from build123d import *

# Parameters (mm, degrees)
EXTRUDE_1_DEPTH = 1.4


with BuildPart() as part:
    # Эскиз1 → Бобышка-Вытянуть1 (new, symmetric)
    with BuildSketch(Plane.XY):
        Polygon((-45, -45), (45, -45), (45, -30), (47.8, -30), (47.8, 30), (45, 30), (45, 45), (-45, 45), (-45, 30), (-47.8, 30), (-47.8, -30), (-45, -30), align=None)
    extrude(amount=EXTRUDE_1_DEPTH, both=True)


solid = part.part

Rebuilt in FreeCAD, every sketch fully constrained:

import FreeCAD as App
import Part
import Sketcher

V = App.Vector


def add_polygon(sketch, points):
    """Adds a closed chain of lines whose ends are joined by coincident constraints."""
    first, n = sketch.GeometryCount, len(points)
    for a, b in zip(points, points[1:] + points[:1]):
        sketch.addGeometry(Part.LineSegment(App.Vector(*a, 0), App.Vector(*b, 0)), False)
    for i in range(n):
        sketch.addConstraint(Sketcher.Constraint("Coincident", first + i, 2, first + (i + 1) % n, 1))

doc = App.newDocument("Part")
body = doc.addObject("PartDesign::Body", "Body")

sketch1 = body.newObject("Sketcher::SketchObject", "Sketch")
sketch1.AttachmentSupport = (doc.getObject("XY_Plane"), [""])
sketch1.MapMode = "FlatFace"
add_polygon(sketch1, [(-45, -45), (45, -45), (45, -30), (47.8, -30), (47.8, 30), (45, 30), (45, 45), (-45, 45), (-45, 30), (-47.8, 30), (-47.8, -30), (-45, -30)])
sketch1.addConstraint([
    Sketcher.Constraint("Horizontal", 0),
    Sketcher.Constraint("Vertical", 1),
    Sketcher.Constraint("Horizontal", 2),
    Sketcher.Constraint("Vertical", 3),
    Sketcher.Constraint("Horizontal", 4),
    Sketcher.Constraint("Vertical", 5),
    Sketcher.Constraint("Horizontal", 6),
    Sketcher.Constraint("Vertical", 7),
    Sketcher.Constraint("Horizontal", 8),
    Sketcher.Constraint("Vertical", 9),
    Sketcher.Constraint("Horizontal", 10),
    Sketcher.Constraint("Vertical", 11),
    Sketcher.Constraint("Symmetric", 0, 2, 6, 2, -1, 1),
    Sketcher.Constraint("Symmetric", 2, 2, 8, 2, -1, 1),
    Sketcher.Constraint("Symmetric", 4, 2, 10, 2, -1, 1),
    Sketcher.Constraint("Symmetric", 4, 2, 7, 2, -2),
    Sketcher.Constraint("DistanceX", 0, 1, 0, 2, 90.0),
    Sketcher.Constraint("DistanceY", 1, 1, 1, 2, 15.0),
    Sketcher.Constraint("DistanceY", 3, 1, 3, 2, 60.0),
    Sketcher.Constraint("DistanceX", 2, 1, 2, 2, 2.8),
])
pad1 = body.newObject("PartDesign::Pad", "Pad")
pad1.Profile = sketch1
pad1.Length = 2.8
pad1.Midplane = True

doc.recompute()
